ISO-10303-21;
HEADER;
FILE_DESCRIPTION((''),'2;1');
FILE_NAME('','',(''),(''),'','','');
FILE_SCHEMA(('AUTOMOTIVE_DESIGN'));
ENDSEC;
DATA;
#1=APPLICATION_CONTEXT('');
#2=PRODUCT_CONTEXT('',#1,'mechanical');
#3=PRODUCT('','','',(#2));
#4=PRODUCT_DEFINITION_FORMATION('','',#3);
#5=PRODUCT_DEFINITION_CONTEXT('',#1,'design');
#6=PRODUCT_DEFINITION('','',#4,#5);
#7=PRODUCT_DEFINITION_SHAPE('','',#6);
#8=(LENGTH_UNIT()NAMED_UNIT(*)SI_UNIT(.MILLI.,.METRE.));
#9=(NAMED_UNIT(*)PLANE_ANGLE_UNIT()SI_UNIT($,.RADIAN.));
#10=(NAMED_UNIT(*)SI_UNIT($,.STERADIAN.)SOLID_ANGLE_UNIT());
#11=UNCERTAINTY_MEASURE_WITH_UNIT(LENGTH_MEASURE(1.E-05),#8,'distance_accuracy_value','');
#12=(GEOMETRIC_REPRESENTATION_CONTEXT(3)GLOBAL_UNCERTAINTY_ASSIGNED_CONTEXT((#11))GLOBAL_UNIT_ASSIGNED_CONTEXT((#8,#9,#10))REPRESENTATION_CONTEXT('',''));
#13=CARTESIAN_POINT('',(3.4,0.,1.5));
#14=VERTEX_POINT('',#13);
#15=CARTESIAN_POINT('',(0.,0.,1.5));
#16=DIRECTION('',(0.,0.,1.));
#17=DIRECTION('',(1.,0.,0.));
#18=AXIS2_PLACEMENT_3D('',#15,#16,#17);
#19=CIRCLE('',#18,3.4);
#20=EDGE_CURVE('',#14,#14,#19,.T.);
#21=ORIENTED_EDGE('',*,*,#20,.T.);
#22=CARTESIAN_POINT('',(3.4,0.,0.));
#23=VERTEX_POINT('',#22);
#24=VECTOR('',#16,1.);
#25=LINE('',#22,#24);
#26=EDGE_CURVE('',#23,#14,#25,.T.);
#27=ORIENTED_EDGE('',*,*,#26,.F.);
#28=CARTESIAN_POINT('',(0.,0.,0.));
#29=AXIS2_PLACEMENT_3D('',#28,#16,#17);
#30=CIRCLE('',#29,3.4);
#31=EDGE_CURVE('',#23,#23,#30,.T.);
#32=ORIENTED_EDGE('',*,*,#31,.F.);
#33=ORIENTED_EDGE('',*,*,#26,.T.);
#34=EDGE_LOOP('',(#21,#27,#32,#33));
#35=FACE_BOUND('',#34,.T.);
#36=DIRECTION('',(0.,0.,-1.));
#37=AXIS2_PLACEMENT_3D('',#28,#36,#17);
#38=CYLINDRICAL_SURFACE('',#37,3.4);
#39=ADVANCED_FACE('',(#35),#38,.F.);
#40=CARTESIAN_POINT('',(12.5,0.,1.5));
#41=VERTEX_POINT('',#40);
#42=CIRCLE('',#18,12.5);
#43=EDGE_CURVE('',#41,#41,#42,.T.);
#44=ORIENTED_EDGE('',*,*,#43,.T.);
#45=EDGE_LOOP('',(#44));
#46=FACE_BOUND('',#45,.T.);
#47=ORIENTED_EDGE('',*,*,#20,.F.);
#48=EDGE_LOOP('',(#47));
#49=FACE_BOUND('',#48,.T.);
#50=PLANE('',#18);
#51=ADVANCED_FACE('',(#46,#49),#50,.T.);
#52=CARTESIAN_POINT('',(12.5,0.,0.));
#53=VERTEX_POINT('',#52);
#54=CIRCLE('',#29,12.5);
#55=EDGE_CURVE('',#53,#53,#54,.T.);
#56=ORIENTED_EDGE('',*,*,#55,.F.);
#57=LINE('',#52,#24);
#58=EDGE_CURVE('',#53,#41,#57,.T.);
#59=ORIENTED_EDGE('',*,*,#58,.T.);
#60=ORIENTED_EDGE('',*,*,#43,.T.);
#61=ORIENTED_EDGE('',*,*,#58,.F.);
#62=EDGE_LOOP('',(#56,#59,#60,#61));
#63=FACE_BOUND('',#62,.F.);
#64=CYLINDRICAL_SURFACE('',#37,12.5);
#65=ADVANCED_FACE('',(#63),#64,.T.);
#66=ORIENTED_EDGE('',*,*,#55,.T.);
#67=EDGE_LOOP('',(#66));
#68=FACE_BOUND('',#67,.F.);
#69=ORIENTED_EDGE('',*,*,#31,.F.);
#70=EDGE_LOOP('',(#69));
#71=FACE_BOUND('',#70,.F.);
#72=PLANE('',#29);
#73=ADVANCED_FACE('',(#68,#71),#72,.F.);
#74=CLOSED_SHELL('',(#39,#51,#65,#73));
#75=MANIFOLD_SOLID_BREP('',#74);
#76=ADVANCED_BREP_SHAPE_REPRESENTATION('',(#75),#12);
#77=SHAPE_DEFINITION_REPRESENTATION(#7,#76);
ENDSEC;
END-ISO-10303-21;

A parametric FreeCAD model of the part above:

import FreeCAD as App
import Part
import Sketcher

V = App.Vector
Q = App.Units.Quantity

doc = App.newDocument("Part")
body = doc.addObject("PartDesign::Body", "Body")

# Sketch on XY plane
sketch1 = body.newObject("Sketcher::SketchObject", "Sketch")
sketch1.AttachmentSupport = (doc.getObject("XY_Plane"), [""])
sketch1.MapMode = "FlatFace"
sketch1.addGeometry([
    Part.Circle(V(0, 0, 0), V(0, 0, 1), 12.5),
    Part.Circle(V(0, 0, 0), V(0, 0, 1), 3.4),
], False)
sketch1.addConstraint([
    Sketcher.Constraint("Coincident", 0, 3, -1, 1),
    Sketcher.Constraint("Coincident", 1, 3, -1, 1),
    Sketcher.Constraint("Diameter", 0, Q("25 mm")),
    Sketcher.Constraint("Diameter", 1, Q("6.8 mm")),
])
pad1 = body.newObject("PartDesign::Pad", "Pad")
pad1.Profile = sketch1
pad1.Length = 1.5

doc.recompute()
